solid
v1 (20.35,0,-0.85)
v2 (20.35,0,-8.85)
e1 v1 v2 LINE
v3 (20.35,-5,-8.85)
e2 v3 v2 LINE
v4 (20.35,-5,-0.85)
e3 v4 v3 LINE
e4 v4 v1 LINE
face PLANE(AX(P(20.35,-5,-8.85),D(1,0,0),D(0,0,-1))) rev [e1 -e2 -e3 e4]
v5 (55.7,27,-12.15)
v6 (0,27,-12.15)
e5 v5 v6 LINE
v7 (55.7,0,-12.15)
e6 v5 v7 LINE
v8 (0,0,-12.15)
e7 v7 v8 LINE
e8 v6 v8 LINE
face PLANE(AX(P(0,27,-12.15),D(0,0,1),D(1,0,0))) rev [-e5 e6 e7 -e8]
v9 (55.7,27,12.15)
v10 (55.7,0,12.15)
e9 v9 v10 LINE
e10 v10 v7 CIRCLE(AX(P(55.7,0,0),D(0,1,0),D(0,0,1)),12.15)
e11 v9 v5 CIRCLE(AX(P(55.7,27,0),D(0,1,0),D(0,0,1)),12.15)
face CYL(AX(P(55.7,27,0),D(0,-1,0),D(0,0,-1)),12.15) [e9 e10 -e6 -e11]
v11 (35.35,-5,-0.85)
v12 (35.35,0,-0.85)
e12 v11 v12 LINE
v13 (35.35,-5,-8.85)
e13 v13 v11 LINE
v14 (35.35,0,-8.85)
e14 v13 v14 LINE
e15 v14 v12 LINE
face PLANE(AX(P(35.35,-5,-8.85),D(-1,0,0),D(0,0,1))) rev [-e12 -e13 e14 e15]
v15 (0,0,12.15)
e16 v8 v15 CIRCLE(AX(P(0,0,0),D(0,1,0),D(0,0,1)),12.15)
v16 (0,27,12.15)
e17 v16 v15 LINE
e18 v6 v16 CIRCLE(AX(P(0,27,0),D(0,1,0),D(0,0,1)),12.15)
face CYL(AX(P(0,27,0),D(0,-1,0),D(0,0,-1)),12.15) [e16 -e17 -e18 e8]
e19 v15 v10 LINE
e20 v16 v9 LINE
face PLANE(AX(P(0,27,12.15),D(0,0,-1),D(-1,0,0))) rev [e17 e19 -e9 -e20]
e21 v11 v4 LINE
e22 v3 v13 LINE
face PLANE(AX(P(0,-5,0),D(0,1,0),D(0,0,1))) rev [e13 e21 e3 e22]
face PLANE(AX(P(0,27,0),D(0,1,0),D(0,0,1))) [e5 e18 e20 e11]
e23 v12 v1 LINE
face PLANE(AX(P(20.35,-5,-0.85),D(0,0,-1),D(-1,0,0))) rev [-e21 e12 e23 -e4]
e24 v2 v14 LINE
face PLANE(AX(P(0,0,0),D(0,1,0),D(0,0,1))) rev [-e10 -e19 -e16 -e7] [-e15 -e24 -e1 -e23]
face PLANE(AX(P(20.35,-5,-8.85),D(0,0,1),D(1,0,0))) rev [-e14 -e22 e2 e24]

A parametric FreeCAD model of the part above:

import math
import FreeCAD as App
import Part
import Sketcher
from FreeCAD import Vector
Q = App.Units.Quantity

doc = App.newDocument("Part")
params = doc.addObject("Spreadsheet::Sheet", "Params")
for row, (alias, value) in enumerate([
    ("sketch1_radius", "12.15 mm"),
    ("sketch1_width", "55.7 mm"),
    ("pad1_length", "27 mm"),
    ("sketch2_width", "15 mm"),
    ("sketch2_height", "8 mm"),
    ("pad2_length", "5 mm"),
], start=1):
    params.set(f"A{row}", alias)
    params.set(f"B{row}", "=" + value)
    params.setAlias(f"B{row}", alias)

body = doc.addObject("PartDesign::Body", "Body")

# Sketch on XZ plane
sketch1 = body.newObject("Sketcher::SketchObject", "Sketch")
sketch1.AttachmentSupport = (doc.getObject("XZ_Plane"), [""])
sketch1.MapMode = "FlatFace"
sketch1.addGeometry(Part.LineSegment(Vector(56, -12, 0), Vector(0, -12, 0)), False)
sketch1.addGeometry(Part.ArcOfCircle(Part.Circle(Vector(0, 0, 0), Vector(0, 0, 1), 12), math.radians(90), math.radians(270)), False)
sketch1.addGeometry(Part.LineSegment(Vector(0, 12, 0), Vector(56, 12, 0)), False)
sketch1.addGeometry(Part.ArcOfCircle(Part.Circle(Vector(56, 0, 0), Vector(0, 0, 1), 12), math.radians(-90), math.radians(90)), False)
sketch1.addConstraint(Sketcher.Constraint("Tangent", 0, 2, 1, 2))
sketch1.addConstraint(Sketcher.Constraint("Tangent", 1, 1, 2, 1))
sketch1.addConstraint(Sketcher.Constraint("Tangent", 2, 2, 3, 2))
sketch1.addConstraint(Sketcher.Constraint("Tangent", 3, 1, 0, 1))
sketch1.addConstraint(Sketcher.Constraint("Horizontal", 0))
sketch1.addConstraint(Sketcher.Constraint("Horizontal", 2))
sketch1.addConstraint(Sketcher.Constraint("Coincident", 1, 3, -1, 1))
sketch1.addConstraint(Sketcher.Constraint("Radius", 1, Q("12.15 mm")))
sketch1.addConstraint(Sketcher.Constraint("DistanceX", 0, 2, 0, 1, Q("55.7 mm")))
sketch1.setExpression("Constraints[7]", "Params.sketch1_radius")
sketch1.setExpression("Constraints[8]", "Params.sketch1_width")
pad1 = body.newObject("PartDesign::Pad", "Pad")
pad1.Profile = sketch1
pad1.setExpression("Length", "Params.pad1_length")
pad1.Reversed = True

# Sketch on XZ plane
sketch2 = body.newObject("Sketcher::SketchObject", "Sketch001")
sketch2.AttachmentSupport = (doc.getObject("XZ_Plane"), [""])
sketch2.MapMode = "FlatFace"
sketch2.addGeometry(Part.LineSegment(Vector(20, -1, 0), Vector(20, -9, 0)), False)
sketch2.addGeometry(Part.LineSegment(Vector(20, -9, 0), Vector(35, -9, 0)), False)
sketch2.addGeometry(Part.LineSegment(Vector(35, -9, 0), Vector(35, -1, 0)), False)
sketch2.addGeometry(Part.LineSegment(Vector(35, -1, 0), Vector(20, -1, 0)), False)
sketch2.addConstraint(Sketcher.Constraint("Coincident", 0, 2, 1, 1))
sketch2.addConstraint(Sketcher.Constraint("Coincident", 1, 2, 2, 1))
sketch2.addConstraint(Sketcher.Constraint("Coincident", 2, 2, 3, 1))
sketch2.addConstraint(Sketcher.Constraint("Coincident", 3, 2, 0, 1))
sketch2.addConstraint(Sketcher.Constraint("Vertical", 0))
sketch2.addConstraint(Sketcher.Constraint("Horizontal", 1))
sketch2.addConstraint(Sketcher.Constraint("Vertical", 2))
sketch2.addConstraint(Sketcher.Constraint("Horizontal", 3))
sketch2.addConstraint(Sketcher.Constraint("DistanceX", 1, 1, 1, 2, Q("15 mm")))
sketch2.addConstraint(Sketcher.Constraint("DistanceY", 0, 2, 0, 1, Q("8 mm")))
sketch2.addConstraint(Sketcher.Constraint("DistanceX", -1, 1, 0, 2, Q("20.35 mm")))
sketch2.addConstraint(Sketcher.Constraint("DistanceY", 0, 2, -1, 1, Q("8.85 mm")))
sketch2.setExpression("Constraints[8]", "Params.sketch2_width")
sketch2.setExpression("Constraints[9]", "Params.sketch2_height")
pad2 = body.newObject("PartDesign::Pad", "Pad001")
pad2.Profile = sketch2
pad2.setExpression("Length", "Params.pad2_length")

doc.recompute()
